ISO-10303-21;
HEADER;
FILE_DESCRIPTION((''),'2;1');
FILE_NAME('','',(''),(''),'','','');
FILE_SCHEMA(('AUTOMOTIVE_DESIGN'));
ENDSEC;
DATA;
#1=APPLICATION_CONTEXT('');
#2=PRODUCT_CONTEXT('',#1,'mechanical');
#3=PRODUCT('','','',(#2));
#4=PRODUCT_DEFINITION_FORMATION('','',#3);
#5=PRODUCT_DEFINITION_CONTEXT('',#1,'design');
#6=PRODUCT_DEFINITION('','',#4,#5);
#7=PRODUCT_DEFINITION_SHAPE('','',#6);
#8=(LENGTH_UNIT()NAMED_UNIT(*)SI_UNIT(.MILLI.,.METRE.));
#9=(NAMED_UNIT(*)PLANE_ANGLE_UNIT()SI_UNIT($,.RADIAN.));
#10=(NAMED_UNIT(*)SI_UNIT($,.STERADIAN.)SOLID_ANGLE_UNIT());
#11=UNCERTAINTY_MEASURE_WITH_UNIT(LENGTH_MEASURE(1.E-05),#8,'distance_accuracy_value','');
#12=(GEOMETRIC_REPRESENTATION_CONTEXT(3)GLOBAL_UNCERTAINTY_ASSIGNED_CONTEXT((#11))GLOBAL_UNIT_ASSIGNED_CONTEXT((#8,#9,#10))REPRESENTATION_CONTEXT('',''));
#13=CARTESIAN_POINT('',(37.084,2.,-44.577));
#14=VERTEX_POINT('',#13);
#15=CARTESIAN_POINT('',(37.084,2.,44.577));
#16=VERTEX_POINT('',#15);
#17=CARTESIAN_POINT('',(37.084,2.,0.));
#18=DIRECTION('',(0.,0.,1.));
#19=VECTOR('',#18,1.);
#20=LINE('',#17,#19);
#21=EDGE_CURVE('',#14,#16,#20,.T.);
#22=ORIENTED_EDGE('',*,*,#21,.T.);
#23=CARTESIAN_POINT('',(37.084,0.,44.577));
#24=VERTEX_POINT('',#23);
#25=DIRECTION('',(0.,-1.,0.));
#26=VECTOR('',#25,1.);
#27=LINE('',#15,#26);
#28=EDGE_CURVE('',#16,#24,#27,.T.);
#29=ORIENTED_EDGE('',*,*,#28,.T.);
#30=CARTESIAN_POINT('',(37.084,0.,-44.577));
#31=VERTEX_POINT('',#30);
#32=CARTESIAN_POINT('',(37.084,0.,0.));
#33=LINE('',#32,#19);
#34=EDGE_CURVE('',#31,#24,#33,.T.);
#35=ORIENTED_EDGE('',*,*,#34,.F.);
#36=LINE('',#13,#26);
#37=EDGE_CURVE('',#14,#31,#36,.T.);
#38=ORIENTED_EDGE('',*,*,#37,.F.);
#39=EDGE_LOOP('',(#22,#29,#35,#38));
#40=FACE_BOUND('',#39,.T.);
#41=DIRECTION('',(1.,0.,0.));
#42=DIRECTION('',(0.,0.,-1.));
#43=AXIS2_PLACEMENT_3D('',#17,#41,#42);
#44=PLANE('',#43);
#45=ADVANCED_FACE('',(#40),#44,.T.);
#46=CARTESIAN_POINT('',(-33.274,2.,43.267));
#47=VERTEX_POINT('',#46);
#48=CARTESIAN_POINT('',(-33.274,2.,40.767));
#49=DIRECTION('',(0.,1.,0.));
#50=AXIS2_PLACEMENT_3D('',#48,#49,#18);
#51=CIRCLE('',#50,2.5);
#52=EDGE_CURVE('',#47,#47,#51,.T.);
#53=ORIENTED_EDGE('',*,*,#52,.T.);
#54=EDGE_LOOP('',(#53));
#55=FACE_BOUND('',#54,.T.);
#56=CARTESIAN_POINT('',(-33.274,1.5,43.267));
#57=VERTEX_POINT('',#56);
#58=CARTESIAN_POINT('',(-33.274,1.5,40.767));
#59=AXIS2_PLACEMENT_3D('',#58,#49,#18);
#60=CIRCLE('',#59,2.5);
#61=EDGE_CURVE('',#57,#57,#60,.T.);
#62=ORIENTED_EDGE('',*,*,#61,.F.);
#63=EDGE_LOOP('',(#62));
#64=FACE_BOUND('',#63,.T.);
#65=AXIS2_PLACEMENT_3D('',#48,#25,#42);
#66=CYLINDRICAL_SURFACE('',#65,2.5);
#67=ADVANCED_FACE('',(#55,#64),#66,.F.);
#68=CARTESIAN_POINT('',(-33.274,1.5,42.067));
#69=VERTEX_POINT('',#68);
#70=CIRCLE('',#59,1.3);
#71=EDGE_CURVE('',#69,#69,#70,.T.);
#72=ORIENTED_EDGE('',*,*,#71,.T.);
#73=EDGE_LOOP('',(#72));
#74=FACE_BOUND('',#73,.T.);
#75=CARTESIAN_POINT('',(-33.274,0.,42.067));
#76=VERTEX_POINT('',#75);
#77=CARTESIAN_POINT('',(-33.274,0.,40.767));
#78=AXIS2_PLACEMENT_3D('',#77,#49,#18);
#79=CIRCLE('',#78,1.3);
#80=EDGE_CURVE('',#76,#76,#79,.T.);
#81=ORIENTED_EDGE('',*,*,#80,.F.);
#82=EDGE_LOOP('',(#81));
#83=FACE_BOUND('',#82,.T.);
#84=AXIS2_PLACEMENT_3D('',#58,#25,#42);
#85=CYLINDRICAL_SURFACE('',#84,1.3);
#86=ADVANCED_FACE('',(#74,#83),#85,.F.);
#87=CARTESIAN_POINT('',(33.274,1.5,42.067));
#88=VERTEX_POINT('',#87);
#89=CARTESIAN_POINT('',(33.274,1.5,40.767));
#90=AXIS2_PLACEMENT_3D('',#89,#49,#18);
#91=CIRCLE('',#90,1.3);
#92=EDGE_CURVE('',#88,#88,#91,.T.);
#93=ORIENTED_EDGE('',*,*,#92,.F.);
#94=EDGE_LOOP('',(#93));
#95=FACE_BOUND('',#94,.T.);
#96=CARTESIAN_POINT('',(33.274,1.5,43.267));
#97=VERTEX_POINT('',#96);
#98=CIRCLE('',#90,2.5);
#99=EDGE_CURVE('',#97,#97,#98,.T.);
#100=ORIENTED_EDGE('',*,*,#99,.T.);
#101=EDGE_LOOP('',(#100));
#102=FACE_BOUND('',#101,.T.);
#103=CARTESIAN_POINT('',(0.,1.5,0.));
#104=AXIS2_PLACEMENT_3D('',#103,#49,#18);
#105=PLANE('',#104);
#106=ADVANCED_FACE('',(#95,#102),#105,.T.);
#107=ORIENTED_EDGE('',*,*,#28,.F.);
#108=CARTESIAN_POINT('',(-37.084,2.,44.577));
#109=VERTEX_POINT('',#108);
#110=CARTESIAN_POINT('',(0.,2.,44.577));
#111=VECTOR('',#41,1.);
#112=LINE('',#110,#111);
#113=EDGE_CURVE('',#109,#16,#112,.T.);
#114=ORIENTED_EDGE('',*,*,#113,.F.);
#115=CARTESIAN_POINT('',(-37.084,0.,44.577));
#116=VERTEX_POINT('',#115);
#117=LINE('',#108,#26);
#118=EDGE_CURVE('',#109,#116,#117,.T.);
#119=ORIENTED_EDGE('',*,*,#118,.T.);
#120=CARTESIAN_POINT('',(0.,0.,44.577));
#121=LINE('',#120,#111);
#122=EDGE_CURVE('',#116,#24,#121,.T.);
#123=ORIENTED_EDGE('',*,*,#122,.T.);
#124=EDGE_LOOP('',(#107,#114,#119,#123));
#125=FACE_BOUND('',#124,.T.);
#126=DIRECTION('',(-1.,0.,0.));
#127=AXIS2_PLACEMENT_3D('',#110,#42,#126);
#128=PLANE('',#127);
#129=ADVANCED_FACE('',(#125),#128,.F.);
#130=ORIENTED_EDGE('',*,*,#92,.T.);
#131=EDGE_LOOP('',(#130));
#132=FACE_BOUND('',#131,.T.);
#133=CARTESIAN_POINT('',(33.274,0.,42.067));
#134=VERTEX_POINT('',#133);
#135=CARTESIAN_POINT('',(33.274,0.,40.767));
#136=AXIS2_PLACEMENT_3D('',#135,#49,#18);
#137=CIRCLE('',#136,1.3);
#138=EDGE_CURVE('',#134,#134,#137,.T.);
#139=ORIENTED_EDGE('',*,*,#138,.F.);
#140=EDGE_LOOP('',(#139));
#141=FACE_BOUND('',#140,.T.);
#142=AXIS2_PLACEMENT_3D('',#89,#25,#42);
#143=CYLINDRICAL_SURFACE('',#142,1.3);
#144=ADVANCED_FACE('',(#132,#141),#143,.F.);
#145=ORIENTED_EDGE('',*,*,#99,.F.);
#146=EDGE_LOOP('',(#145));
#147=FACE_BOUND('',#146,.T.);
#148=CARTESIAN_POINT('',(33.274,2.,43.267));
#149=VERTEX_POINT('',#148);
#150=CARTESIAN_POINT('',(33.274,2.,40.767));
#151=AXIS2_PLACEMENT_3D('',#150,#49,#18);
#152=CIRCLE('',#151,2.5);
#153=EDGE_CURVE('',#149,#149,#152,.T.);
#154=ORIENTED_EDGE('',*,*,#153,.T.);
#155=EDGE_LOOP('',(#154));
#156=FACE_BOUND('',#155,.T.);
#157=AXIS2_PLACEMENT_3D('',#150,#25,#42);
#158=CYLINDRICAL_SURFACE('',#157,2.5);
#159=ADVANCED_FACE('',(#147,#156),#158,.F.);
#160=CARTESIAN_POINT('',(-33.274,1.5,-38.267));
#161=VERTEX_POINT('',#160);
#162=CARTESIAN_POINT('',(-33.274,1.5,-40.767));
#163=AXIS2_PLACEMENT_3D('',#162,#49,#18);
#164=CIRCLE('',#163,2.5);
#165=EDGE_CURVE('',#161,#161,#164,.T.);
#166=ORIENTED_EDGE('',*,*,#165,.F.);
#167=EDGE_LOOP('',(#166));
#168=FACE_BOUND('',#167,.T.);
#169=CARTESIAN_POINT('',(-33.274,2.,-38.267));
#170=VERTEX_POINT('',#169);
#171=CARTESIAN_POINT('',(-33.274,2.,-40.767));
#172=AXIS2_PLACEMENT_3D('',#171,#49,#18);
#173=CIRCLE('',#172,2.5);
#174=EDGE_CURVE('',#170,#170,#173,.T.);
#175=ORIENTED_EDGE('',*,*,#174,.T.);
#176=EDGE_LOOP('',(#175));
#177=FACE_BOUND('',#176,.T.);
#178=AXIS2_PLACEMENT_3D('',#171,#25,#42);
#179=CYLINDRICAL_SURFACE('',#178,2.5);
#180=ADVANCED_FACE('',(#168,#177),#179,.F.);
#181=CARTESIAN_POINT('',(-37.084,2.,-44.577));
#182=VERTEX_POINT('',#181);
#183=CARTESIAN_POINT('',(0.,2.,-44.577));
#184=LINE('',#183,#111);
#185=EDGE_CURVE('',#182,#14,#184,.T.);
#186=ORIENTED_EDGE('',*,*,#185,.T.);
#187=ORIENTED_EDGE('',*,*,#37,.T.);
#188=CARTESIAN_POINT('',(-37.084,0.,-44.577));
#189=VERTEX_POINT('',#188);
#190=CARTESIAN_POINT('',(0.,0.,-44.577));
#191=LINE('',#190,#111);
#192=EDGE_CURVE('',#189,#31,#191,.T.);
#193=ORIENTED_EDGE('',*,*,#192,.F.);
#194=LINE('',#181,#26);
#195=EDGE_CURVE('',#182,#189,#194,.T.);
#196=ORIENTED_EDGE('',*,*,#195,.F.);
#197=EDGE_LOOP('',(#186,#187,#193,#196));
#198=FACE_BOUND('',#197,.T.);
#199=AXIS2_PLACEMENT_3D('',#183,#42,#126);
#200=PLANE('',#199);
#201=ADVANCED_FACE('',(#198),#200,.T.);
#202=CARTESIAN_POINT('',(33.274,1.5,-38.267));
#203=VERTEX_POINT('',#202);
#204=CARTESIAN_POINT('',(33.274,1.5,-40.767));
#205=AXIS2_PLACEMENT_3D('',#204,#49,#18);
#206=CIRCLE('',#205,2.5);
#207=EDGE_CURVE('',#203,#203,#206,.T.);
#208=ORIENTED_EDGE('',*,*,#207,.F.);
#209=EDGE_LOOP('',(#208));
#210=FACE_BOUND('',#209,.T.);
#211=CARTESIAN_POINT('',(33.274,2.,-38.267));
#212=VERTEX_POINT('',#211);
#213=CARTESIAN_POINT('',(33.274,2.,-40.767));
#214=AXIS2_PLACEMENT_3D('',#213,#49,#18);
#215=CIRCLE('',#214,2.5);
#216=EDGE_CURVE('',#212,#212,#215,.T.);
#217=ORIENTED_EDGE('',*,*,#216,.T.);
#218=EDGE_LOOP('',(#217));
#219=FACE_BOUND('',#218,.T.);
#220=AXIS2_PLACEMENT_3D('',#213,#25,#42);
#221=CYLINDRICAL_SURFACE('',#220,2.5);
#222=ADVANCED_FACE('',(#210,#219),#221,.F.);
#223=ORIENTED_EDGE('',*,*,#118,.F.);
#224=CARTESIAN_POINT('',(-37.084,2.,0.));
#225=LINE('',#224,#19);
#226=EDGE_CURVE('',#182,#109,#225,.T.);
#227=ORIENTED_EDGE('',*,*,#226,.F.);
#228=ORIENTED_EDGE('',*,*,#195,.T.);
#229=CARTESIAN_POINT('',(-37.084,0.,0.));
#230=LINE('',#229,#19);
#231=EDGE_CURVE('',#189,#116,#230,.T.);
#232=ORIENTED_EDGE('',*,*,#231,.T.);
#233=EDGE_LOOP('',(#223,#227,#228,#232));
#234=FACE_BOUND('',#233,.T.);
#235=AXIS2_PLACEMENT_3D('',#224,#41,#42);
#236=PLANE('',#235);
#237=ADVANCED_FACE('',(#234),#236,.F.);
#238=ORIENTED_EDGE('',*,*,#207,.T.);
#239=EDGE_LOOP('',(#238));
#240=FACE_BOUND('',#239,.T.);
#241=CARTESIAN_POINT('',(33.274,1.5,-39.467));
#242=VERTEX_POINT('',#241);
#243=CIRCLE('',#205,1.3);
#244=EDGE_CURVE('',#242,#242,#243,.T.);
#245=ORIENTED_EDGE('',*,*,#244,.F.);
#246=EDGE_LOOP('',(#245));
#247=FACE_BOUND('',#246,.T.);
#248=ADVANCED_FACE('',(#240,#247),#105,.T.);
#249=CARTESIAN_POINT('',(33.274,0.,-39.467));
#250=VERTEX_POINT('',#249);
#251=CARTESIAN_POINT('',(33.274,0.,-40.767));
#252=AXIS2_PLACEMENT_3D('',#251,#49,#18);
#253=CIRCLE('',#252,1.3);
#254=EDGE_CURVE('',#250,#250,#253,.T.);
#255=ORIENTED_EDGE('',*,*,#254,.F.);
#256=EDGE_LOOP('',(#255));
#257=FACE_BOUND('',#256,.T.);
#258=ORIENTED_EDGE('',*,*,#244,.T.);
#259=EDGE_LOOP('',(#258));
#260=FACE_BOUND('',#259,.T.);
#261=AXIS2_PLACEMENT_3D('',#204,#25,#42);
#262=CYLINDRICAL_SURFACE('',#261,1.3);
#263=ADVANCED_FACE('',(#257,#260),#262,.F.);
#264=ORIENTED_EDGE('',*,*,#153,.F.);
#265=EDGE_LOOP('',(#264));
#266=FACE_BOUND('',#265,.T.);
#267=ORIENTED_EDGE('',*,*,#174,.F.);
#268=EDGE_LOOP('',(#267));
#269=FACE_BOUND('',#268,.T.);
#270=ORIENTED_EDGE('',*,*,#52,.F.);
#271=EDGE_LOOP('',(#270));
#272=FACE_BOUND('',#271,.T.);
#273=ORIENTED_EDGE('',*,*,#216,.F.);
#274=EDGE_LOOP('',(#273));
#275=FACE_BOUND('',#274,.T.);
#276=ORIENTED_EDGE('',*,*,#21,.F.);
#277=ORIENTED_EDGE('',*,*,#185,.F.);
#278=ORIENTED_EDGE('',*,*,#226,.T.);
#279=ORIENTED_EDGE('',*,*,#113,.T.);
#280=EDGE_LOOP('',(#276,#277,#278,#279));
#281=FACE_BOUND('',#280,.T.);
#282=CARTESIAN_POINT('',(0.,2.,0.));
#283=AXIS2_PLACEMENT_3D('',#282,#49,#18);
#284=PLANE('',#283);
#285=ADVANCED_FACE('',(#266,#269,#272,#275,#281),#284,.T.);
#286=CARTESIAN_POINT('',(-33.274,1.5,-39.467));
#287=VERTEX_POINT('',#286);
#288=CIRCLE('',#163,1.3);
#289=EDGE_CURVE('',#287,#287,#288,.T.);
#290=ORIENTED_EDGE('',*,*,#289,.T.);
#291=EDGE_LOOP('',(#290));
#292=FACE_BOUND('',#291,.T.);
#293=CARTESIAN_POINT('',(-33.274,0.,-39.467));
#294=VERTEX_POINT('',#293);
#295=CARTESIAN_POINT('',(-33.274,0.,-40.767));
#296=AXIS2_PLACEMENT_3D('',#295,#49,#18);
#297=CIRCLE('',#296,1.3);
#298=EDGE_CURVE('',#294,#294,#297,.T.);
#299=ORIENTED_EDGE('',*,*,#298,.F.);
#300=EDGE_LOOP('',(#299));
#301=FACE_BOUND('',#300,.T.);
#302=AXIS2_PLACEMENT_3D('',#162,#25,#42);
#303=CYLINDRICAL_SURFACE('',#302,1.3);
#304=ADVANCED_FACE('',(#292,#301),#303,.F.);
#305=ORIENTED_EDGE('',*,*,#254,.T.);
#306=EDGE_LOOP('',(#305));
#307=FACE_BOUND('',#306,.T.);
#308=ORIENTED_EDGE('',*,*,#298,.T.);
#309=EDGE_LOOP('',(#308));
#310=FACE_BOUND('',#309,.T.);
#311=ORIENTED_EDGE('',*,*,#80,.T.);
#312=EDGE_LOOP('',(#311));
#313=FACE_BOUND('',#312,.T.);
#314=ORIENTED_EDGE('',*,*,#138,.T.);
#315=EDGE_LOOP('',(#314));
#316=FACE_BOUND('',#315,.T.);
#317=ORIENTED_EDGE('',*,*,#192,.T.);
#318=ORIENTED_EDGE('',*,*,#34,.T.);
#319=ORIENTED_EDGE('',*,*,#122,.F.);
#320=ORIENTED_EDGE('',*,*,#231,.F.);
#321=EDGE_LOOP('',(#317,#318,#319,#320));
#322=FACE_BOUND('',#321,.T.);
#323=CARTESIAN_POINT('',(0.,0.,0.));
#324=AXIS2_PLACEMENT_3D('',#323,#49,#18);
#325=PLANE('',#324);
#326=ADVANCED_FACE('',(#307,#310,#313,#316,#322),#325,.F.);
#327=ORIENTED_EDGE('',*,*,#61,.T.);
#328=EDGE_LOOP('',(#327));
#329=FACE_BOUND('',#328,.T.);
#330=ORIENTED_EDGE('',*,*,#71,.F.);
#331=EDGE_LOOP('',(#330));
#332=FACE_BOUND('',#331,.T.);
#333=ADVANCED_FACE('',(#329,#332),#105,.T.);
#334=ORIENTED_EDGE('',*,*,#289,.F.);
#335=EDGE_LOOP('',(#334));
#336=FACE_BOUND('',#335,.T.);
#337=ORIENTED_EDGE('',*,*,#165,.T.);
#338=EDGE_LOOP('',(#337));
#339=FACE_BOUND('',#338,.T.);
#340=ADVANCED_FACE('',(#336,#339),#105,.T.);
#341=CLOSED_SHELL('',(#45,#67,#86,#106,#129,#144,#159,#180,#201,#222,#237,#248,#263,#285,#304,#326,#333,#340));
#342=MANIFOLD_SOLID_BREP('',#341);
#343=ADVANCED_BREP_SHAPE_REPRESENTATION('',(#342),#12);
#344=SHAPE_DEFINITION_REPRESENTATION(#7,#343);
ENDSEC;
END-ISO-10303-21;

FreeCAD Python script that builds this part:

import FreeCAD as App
import Part
import Sketcher
Q = App.Units.Quantity


def add_polygon(sketch, points):
    """Adds a closed chain of lines whose ends are joined by coincident constraints."""
    first, n = sketch.GeometryCount, len(points)
    for a, b in zip(points, points[1:] + points[:1]):
        sketch.addGeometry(Part.LineSegment(App.Vector(*a, 0), App.Vector(*b, 0)), False)
    for i in range(n):
        sketch.addConstraint(Sketcher.Constraint("Coincident", first + i, 2, first + (i + 1) % n, 1))

doc = App.newDocument("Part")
body = doc.addObject("PartDesign::Body", "Body")

# Sketch on XZ plane
sketch1 = doc.addObject("Sketcher::SketchObject", "Sketch")
body.addObject(sketch1)
sketch1.AttachmentSupport = (doc.XZ_Plane, [""])
sketch1.MapMode = "FlatFace"
add_polygon(sketch1, [(-37.1, -44.6), (-37.1, 44.6), (37.1, 44.6), (37.1, -44.6)])  # lines 0-3
sketch1.addGeometry(Part.Circle(App.Vector(-33.3, 40.8, 0), App.Vector(0, 0, 1), 2.5), False)  # 4
sketch1.addGeometry(Part.Circle(App.Vector(33.3, 40.8, 0), App.Vector(0, 0, 1), 2.5), False)  # 5
sketch1.addGeometry(Part.Circle(App.Vector(-33.3, -40.8, 0), App.Vector(0, 0, 1), 2.5), False)  # 6
sketch1.addGeometry(Part.Circle(App.Vector(33.3, -40.8, 0), App.Vector(0, 0, 1), 2.5), False)  # 7
sketch1.addConstraint([
    Sketcher.Constraint("Vertical", 0),
    Sketcher.Constraint("Horizontal", 1),
    Sketcher.Constraint("Vertical", 2),
    Sketcher.Constraint("Horizontal", 3),
    Sketcher.Constraint("Equal", 4, 5),
    Sketcher.Constraint("Equal", 5, 6),
    Sketcher.Constraint("Equal", 6, 7),
    Sketcher.Constraint("Symmetric", 5, 3, 6, 3, -1, 1),
    Sketcher.Constraint("Symmetric", 4, 3, 7, 3, -1, 1),
    Sketcher.Constraint("Symmetric", 0, 2, 2, 2, -1, 1),
    Sketcher.Constraint("Symmetric", 4, 3, 5, 3, -2),
    Sketcher.Constraint("Diameter", 4, Q("5 mm")),
    Sketcher.Constraint("DistanceX", 1, 1, 1, 2, Q("74.168 mm")),
    Sketcher.Constraint("DistanceY", 0, 1, 0, 2, Q("89.154 mm")),
    Sketcher.Constraint("DistanceX", 0, 2, 4, 3, Q("3.81 mm")),
    Sketcher.Constraint("DistanceY", 4, 3, 0, 2, Q("3.81 mm")),
])
pad1 = doc.addObject("PartDesign::Pad", "Pad")
body.addObject(pad1)
pad1.Profile = sketch1
pad1.Length = 2
pad1.Reversed = True

# Sketch on XZ plane
sketch2 = doc.addObject("Sketcher::SketchObject", "Sketch001")
body.addObject(sketch2)
sketch2.AttachmentSupport = (doc.XZ_Plane, [""])
sketch2.MapMode = "FlatFace"
sketch2.addGeometry([
    Part.Circle(App.Vector(-33.3, -40.8, 0), App.Vector(0, 0, 1), 2.5),  # 0
    Part.Circle(App.Vector(-33.3, -40.8, 0), App.Vector(0, 0, 1), 1.3),  # 1
    Part.Circle(App.Vector(33.3, -40.8, 0), App.Vector(0, 0, 1), 2.5),  # 2
    Part.Circle(App.Vector(33.3, -40.8, 0), App.Vector(0, 0, 1), 1.3),  # 3
    Part.Circle(App.Vector(-33.3, 40.8, 0), App.Vector(0, 0, 1), 2.5),  # 4
    Part.Circle(App.Vector(-33.3, 40.8, 0), App.Vector(0, 0, 1), 1.3),  # 5
    Part.Circle(App.Vector(33.3, 40.8, 0), App.Vector(0, 0, 1), 2.5),  # 6
    Part.Circle(App.Vector(33.3, 40.8, 0), App.Vector(0, 0, 1), 1.3),  # 7
], False)
sketch2.addConstraint([
    Sketcher.Constraint("Coincident", 1, 3, 0, 3),
    Sketcher.Constraint("Coincident", 3, 3, 2, 3),
    Sketcher.Constraint("Coincident", 5, 3, 4, 3),
    Sketcher.Constraint("Coincident", 7, 3, 6, 3),
    Sketcher.Constraint("Equal", 0, 2),
    Sketcher.Constraint("Equal", 1, 3),
    Sketcher.Constraint("Equal", 2, 4),
    Sketcher.Constraint("Equal", 3, 5),
    Sketcher.Constraint("Equal", 4, 6),
    Sketcher.Constraint("Equal", 5, 7),
    Sketcher.Constraint("Symmetric", 2, 3, 4, 3, -1, 1),
    Sketcher.Constraint("Symmetric", 0, 3, 6, 3, -1, 1),
    Sketcher.Constraint("Symmetric", 0, 3, 2, 3, -2),
    Sketcher.Constraint("Diameter", 0, Q("5 mm")),
    Sketcher.Constraint("Diameter", 1, Q("2.6 mm")),
    Sketcher.Constraint("DistanceX", 0, 3, -1, 1, Q("33.274 mm")),
    Sketcher.Constraint("DistanceY", 0, 3, -1, 1, Q("40.767 mm")),
])
pad2 = doc.addObject("PartDesign::Pad", "Pad001")
body.addObject(pad2)
pad2.Profile = sketch2
pad2.Length = 1.5
pad2.Reversed = True

doc.recompute()
